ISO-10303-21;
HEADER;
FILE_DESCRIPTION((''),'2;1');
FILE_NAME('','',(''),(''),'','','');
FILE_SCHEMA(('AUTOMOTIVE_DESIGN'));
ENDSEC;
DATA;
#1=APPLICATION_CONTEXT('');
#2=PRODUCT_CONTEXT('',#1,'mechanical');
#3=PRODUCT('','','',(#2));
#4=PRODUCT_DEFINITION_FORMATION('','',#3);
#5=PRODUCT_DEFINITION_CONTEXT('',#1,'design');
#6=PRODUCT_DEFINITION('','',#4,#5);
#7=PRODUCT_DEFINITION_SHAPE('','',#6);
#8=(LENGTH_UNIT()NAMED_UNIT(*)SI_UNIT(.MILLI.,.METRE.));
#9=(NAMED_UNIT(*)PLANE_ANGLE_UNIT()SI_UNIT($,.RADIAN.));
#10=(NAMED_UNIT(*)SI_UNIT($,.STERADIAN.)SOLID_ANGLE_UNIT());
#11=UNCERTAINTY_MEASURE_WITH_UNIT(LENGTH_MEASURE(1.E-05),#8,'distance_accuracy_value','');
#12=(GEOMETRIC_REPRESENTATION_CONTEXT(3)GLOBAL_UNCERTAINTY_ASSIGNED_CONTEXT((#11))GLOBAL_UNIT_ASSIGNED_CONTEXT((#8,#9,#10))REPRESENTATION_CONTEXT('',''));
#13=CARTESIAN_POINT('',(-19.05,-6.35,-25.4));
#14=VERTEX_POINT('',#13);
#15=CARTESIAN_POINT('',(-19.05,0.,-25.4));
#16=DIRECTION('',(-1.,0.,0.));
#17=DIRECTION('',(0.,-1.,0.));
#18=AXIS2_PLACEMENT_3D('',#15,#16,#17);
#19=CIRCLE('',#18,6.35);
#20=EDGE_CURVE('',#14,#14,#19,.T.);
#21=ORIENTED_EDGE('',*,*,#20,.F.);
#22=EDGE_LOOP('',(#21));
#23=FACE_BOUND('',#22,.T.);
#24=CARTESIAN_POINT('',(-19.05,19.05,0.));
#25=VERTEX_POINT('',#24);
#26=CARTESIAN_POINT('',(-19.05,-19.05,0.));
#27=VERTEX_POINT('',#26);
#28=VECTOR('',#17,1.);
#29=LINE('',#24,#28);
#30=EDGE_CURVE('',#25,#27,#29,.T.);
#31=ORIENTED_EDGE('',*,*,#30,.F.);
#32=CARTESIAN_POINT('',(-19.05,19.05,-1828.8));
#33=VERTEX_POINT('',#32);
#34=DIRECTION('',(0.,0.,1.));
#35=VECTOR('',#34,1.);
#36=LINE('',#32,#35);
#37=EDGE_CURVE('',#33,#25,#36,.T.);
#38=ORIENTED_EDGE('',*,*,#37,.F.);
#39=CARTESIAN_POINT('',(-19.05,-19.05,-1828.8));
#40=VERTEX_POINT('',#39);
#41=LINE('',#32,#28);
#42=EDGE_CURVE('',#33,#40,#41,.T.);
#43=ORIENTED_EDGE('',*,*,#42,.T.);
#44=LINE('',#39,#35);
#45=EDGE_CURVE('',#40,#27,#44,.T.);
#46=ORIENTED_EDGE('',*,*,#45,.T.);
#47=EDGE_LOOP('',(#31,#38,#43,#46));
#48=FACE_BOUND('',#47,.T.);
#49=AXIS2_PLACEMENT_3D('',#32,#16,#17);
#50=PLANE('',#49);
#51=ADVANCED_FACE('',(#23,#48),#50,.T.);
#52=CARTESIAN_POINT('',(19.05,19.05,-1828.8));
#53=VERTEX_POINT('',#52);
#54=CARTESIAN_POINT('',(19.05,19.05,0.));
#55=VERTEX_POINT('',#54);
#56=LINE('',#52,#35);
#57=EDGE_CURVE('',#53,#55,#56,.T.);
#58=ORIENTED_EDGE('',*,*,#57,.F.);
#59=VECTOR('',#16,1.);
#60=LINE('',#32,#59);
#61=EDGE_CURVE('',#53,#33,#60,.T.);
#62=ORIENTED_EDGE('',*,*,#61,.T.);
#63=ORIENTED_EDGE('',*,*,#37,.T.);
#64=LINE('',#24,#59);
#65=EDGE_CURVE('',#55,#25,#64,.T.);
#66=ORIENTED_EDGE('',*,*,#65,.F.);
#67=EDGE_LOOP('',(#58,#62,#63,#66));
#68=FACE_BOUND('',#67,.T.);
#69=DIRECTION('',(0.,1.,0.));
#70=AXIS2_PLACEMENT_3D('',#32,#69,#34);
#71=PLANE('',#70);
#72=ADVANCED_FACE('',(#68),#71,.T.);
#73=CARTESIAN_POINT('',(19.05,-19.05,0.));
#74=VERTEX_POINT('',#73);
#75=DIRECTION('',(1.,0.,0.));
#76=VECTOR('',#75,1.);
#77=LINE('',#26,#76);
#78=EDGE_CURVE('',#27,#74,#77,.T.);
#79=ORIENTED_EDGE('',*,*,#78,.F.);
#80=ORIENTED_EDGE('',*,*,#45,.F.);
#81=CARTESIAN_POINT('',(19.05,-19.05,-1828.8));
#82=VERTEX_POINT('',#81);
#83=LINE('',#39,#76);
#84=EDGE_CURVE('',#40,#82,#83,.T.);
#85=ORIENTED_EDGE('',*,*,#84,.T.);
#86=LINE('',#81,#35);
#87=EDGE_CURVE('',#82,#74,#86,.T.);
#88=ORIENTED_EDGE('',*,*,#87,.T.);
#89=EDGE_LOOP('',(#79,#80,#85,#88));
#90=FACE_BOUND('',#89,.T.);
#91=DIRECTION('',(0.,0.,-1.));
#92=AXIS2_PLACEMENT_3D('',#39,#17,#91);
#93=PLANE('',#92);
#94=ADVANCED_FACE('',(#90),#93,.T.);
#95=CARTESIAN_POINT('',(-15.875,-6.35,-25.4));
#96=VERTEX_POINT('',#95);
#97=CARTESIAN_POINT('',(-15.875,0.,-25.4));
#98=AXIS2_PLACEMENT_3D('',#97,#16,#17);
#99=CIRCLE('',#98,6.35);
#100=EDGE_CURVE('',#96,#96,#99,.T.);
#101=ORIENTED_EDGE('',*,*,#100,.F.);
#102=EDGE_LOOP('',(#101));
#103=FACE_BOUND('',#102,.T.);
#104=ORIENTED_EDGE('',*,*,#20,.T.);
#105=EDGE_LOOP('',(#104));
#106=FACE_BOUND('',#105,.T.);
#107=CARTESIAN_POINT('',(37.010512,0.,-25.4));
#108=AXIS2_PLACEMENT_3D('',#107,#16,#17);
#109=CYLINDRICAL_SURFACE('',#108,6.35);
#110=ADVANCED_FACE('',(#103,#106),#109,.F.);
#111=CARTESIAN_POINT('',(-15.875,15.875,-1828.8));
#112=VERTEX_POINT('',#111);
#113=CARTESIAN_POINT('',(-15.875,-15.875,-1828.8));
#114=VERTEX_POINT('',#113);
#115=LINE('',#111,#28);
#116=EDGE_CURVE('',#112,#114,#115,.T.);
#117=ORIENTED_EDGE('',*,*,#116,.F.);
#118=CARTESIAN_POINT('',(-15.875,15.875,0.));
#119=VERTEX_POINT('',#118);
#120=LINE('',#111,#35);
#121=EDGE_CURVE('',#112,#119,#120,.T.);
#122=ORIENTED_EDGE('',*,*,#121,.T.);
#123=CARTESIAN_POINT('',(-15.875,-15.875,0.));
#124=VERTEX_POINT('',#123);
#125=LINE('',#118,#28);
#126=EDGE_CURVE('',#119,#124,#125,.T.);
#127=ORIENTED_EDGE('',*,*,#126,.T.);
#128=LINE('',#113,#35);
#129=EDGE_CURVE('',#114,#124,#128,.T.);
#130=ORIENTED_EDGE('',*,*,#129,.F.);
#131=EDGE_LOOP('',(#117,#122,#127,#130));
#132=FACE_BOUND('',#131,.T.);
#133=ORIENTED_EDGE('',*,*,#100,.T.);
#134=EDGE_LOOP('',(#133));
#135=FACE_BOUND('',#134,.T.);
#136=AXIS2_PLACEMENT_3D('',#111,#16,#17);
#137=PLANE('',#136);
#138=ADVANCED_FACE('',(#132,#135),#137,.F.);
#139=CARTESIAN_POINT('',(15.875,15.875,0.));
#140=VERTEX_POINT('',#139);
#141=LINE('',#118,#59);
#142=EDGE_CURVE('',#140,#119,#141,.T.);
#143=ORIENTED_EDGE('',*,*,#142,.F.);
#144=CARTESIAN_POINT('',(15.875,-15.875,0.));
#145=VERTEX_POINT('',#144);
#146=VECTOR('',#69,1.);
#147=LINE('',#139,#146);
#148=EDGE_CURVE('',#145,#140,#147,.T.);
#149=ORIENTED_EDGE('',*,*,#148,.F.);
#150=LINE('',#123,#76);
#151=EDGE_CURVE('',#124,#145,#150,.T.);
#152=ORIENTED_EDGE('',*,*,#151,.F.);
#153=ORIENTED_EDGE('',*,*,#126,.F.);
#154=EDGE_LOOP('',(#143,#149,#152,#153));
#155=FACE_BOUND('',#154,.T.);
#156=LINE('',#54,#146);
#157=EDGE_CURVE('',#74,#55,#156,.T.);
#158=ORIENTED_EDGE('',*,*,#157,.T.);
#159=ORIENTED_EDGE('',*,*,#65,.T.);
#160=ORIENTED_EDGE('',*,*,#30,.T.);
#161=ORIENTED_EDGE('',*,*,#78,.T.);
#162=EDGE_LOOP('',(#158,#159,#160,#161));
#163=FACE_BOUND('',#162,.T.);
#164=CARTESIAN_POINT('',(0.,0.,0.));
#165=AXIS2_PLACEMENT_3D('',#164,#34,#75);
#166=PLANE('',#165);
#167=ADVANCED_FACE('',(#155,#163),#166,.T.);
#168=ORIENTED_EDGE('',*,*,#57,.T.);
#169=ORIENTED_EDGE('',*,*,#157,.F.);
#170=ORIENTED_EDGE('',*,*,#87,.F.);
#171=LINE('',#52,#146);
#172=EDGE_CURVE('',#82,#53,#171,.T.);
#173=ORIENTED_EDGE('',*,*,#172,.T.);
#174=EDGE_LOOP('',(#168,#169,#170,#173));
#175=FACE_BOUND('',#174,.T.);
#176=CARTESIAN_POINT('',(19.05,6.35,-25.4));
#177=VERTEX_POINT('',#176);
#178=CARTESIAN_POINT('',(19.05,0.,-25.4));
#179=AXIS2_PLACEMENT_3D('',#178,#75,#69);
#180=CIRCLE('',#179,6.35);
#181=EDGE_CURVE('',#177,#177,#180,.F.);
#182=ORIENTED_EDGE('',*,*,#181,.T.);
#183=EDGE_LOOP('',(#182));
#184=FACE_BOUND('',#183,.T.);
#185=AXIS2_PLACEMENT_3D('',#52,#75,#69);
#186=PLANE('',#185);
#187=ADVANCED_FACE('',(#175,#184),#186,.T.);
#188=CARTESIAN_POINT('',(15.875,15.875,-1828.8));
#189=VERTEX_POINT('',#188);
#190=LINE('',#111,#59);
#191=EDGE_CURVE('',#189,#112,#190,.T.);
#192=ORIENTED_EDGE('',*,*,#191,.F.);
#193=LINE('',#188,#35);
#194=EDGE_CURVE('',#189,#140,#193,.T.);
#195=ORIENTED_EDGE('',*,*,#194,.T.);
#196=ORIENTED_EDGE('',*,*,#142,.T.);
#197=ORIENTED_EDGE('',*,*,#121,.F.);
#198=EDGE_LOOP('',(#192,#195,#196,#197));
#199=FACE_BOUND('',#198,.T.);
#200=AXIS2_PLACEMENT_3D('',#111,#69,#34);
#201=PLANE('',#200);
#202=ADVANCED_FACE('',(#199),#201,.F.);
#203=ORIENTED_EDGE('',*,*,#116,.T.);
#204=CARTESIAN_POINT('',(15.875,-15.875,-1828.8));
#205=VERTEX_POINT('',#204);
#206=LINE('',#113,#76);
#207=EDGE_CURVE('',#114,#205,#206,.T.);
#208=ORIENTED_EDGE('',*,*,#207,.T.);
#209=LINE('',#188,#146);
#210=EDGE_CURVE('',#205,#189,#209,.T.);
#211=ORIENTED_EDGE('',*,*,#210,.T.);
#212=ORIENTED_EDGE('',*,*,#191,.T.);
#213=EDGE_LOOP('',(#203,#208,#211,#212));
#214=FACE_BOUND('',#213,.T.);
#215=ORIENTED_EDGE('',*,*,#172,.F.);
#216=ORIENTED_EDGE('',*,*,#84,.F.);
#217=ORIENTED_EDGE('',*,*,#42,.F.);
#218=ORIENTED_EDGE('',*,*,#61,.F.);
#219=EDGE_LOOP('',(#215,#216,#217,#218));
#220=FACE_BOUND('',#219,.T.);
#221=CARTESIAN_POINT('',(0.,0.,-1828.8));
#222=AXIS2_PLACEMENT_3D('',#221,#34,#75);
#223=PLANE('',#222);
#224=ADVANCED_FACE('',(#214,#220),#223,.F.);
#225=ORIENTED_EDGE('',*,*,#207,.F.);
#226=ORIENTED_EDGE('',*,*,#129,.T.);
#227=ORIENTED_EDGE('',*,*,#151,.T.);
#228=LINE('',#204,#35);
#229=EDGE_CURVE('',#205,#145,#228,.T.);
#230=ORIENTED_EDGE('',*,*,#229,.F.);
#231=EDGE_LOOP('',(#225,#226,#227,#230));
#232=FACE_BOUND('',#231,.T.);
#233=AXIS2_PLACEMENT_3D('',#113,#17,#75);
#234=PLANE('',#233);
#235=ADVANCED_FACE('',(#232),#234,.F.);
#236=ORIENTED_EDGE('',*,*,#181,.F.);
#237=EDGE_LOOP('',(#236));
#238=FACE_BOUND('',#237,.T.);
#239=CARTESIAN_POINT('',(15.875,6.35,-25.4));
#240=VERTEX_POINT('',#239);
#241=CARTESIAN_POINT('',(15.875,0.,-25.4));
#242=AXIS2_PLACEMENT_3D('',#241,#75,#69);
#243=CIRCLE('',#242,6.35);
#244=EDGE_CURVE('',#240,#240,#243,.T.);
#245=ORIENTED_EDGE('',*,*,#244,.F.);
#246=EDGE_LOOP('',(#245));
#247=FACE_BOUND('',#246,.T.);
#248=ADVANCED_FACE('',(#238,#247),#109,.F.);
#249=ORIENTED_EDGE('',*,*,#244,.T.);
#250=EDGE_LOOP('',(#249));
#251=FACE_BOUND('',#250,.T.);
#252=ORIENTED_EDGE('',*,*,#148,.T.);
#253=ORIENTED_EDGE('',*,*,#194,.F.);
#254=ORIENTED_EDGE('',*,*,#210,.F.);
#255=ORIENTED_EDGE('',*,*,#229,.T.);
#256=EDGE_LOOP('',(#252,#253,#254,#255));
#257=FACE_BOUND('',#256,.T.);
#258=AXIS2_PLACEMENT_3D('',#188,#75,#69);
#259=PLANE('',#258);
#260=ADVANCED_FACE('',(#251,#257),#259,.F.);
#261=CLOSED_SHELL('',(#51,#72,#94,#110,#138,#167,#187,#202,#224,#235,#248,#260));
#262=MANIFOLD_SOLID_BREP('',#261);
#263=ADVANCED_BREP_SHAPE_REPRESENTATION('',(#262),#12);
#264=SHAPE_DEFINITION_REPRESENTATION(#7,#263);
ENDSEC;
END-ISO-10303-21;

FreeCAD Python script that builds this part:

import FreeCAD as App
import Part
import Sketcher

V = App.Vector
Q = App.Units.Quantity

doc = App.newDocument("Part")
body = doc.addObject("PartDesign::Body", "Body")

# Sketch on XY plane
sketch1 = body.newObject("Sketcher::SketchObject", "Sketch")
sketch1.AttachmentSupport = (doc.getObject("XY_Plane"), [""])
sketch1.MapMode = "FlatFace"
sketch1.addGeometry([
    Part.LineSegment(V(-19.05, 19.05, 0), V(-19.05, -19.05, 0)),  # 0
    Part.LineSegment(V(-19.05, -19.05, 0), V(19.05, -19.05, 0)),  # 1
    Part.LineSegment(V(19.05, -19.05, 0), V(19.05, 19.05, 0)),  # 2
    Part.LineSegment(V(19.05, 19.05, 0), V(-19.05, 19.05, 0)),  # 3
    Part.LineSegment(V(15.875, -15.875, 0), V(-15.875, -15.875, 0)),  # 4
    Part.LineSegment(V(-15.875, -15.875, 0), V(-15.875, 15.875, 0)),  # 5
    Part.LineSegment(V(-15.875, 15.875, 0), V(15.875, 15.875, 0)),  # 6
    Part.LineSegment(V(15.875, 15.875, 0), V(15.875, -15.875, 0)),  # 7
], False)
sketch1.addConstraint([
    Sketcher.Constraint("Coincident", 0, 2, 1, 1),
    Sketcher.Constraint("Coincident", 1, 2, 2, 1),
    Sketcher.Constraint("Coincident", 2, 2, 3, 1),
    Sketcher.Constraint("Coincident", 3, 2, 0, 1),
    Sketcher.Constraint("Coincident", 4, 2, 5, 1),
    Sketcher.Constraint("Coincident", 5, 2, 6, 1),
    Sketcher.Constraint("Coincident", 6, 2, 7, 1),
    Sketcher.Constraint("Coincident", 7, 2, 4, 1),
    Sketcher.Constraint("Vertical", 0),
    Sketcher.Constraint("Horizontal", 1),
    Sketcher.Constraint("Vertical", 2),
    Sketcher.Constraint("Horizontal", 3),
    Sketcher.Constraint("Horizontal", 4),
    Sketcher.Constraint("Vertical", 5),
    Sketcher.Constraint("Horizontal", 6),
    Sketcher.Constraint("Vertical", 7),
    Sketcher.Constraint("Symmetric", 0, 2, 2, 2, -1, 1),
    Sketcher.Constraint("Symmetric", 4, 2, 6, 2, -1, 1),
    Sketcher.Constraint("Equal", 3, 0),
    Sketcher.Constraint("Equal", 6, 5),
    Sketcher.Constraint("DistanceX", 1, 1, 1, 2, Q("1.5 in")),
    Sketcher.Constraint("DistanceX", 4, 2, 4, 1, Q("1.25 in")),
])
pad1 = body.newObject("PartDesign::Pad", "Pad")
pad1.Profile = sketch1
pad1.Length = Q("72 in")
pad1.Reversed = True

# Sketch on YZ plane
sketch2 = body.newObject("Sketcher::SketchObject", "Sketch001")
sketch2.AttachmentSupport = (doc.getObject("YZ_Plane"), [""])
sketch2.MapMode = "FlatFace"
sketch2.AttachmentOffset = App.Placement(V(0, 0, -0.75 * 25.4), App.Rotation())
sketch2.addGeometry(Part.Circle(V(0, -25.4, 0), V(0, 0, 1), 6.35), False)
sketch2.addConstraint([
    Sketcher.Constraint("PointOnObject", 0, 3, -2),
    Sketcher.Constraint("Diameter", 0, Q("0.5 in")),
    Sketcher.Constraint("DistanceY", 0, 3, -1, 1, Q("1 in")),
])
pocket1 = body.newObject("PartDesign::Pocket", "Pocket")
pocket1.Profile = sketch2
pocket1.Length = Q("1.5 in")
pocket1.Reversed = True

doc.recompute()
